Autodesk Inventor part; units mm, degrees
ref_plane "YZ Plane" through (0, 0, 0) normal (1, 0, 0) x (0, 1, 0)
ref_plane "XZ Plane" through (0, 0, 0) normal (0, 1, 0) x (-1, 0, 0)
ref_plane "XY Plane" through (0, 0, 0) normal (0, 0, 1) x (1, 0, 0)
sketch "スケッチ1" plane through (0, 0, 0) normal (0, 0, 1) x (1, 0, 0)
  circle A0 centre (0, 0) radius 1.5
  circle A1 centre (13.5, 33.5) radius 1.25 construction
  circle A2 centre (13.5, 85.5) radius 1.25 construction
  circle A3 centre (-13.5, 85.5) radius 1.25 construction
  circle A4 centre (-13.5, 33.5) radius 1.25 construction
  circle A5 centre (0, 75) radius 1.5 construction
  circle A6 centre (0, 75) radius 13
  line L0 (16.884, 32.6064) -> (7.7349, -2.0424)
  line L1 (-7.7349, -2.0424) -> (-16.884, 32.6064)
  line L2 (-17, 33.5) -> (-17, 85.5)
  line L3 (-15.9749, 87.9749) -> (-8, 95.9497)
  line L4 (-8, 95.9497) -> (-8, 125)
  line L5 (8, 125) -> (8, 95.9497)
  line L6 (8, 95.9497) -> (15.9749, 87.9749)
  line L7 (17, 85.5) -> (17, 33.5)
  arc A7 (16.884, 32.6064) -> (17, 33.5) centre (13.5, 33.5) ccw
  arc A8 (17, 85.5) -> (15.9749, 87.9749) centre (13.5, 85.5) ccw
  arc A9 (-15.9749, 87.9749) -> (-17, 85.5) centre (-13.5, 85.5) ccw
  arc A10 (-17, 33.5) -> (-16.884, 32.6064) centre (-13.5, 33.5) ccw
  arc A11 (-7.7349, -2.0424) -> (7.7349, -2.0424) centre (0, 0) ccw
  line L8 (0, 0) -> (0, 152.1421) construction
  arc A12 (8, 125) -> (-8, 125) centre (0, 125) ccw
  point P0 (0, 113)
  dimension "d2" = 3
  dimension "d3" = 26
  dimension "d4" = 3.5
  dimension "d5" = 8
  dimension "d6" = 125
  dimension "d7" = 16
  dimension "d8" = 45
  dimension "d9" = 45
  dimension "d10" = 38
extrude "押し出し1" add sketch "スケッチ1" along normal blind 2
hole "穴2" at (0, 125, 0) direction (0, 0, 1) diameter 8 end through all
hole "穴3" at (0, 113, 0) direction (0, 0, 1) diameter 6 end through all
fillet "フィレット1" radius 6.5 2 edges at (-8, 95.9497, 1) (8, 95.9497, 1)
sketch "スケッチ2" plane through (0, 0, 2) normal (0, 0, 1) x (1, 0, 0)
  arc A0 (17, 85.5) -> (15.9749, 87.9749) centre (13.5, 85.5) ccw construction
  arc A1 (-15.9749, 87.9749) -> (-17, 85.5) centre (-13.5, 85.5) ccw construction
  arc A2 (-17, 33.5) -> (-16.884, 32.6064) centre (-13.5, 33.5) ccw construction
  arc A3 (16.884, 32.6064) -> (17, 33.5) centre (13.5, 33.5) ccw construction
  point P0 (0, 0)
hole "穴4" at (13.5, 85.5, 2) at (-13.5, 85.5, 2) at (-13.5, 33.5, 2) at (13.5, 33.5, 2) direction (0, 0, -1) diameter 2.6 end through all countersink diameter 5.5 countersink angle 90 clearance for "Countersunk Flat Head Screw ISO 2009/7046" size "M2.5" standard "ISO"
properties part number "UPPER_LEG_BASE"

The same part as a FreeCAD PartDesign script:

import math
import FreeCAD as App
import Part
import Sketcher

V = App.Vector
Q = App.Units.Quantity


def edges_at(feature, points):
    """Names of the edges that pass closest to the given points."""
    edges = feature.Shape.Edges
    near = lambda p: min(range(len(edges)), key=lambda i: edges[i].distToShape(Part.Vertex(*p))[0])
    return sorted({f"Edge{near(p) + 1}" for p in points})

doc = App.newDocument("Part")
body = doc.addObject("PartDesign::Body", "Body")

sketch1 = doc.addObject("Sketcher::SketchObject", "Sketch")
body.addObject(sketch1)
sketch1.AttachmentSupport = (doc.XY_Plane, [""])
sketch1.MapMode = "FlatFace"
sketch1.addGeometry([
    Part.LineSegment(V(7.7, -2, 0), V(16.9, 32.6, 0)),
    Part.ArcOfCircle(Part.Circle(V(13.5, 33.5, 0), V(0, 0, 1), 3.5), math.radians(-14.79), math.radians(0)),
    Part.LineSegment(V(17, 33.5, 0), V(17, 85.5, 0)),
    Part.ArcOfCircle(Part.Circle(V(13.5, 85.5, 0), V(0, 0, 1), 3.5), math.radians(0), math.radians(45)),
    Part.LineSegment(V(16, 88, 0), V(8, 95.9, 0)),
    Part.LineSegment(V(8, 95.9, 0), V(8, 125, 0)),
    Part.ArcOfCircle(Part.Circle(V(0, 125, 0), V(0, 0, 1), 8), math.radians(0), math.radians(180)),
    Part.LineSegment(V(-8, 125, 0), V(-8, 95.9, 0)),
    Part.LineSegment(V(-8, 95.9, 0), V(-16, 88, 0)),
    Part.ArcOfCircle(Part.Circle(V(-13.5, 85.5, 0), V(0, 0, 1), 3.5), math.radians(135), math.radians(180)),
    Part.LineSegment(V(-17, 85.5, 0), V(-17, 33.5, 0)),
    Part.ArcOfCircle(Part.Circle(V(-13.5, 33.5, 0), V(0, 0, 1), 3.5), math.radians(180), math.radians(194.79)),
    Part.LineSegment(V(-16.9, 32.6, 0), V(-7.7, -2, 0)),
    Part.ArcOfCircle(Part.Circle(V(0, 0, 0), V(0, 0, 1), 8), math.radians(-165), math.radians(-15)),
    Part.Circle(V(0, 0, 0), V(0, 0, 1), 1.5),
    Part.Circle(V(0, 75, 0), V(0, 0, 1), 13),
], False)
sketch1.addConstraint([
    Sketcher.Constraint("Tangent", 0, 2, 1, 1),
    Sketcher.Constraint("Tangent", 1, 2, 2, 1),
    Sketcher.Constraint("Tangent", 2, 2, 3, 1),
    Sketcher.Constraint("Tangent", 3, 2, 4, 1),
    Sketcher.Constraint("Coincident", 4, 2, 5, 1),
    Sketcher.Constraint("Tangent", 5, 2, 6, 1),
    Sketcher.Constraint("Tangent", 6, 2, 7, 1),
    Sketcher.Constraint("Coincident", 7, 2, 8, 1),
    Sketcher.Constraint("Tangent", 8, 2, 9, 1),
    Sketcher.Constraint("Tangent", 9, 2, 10, 1),
    Sketcher.Constraint("Tangent", 10, 2, 11, 1),
    Sketcher.Constraint("Tangent", 11, 2, 12, 1),
    Sketcher.Constraint("Tangent", 12, 2, 13, 1),
    Sketcher.Constraint("Tangent", 13, 2, 0, 1),
    Sketcher.Constraint("Vertical", 2),
    Sketcher.Constraint("Vertical", 5),
    Sketcher.Constraint("Vertical", 7),
    Sketcher.Constraint("Vertical", 10),
    Sketcher.Constraint("Coincident", 13, 3, -1, 1),
    Sketcher.Constraint("Coincident", 14, 3, -1, 1),
    Sketcher.Constraint("Equal", 1, 3),
    Sketcher.Constraint("Equal", 3, 9),
    Sketcher.Constraint("Equal", 9, 11),
    Sketcher.Constraint("Equal", 6, 13),
    Sketcher.Constraint("Symmetric", 3, 3, 9, 3, -2),
    Sketcher.Constraint("Symmetric", 4, 2, 7, 2, -2),
    Sketcher.Constraint("PointOnObject", 15, 3, -2),
    Sketcher.Constraint("Perpendicular", 4, 8),
    Sketcher.Constraint("Horizontal", 1, 3, 11, 3),
    Sketcher.Constraint("Diameter", 14, Q("3 mm")),
    Sketcher.Constraint("Diameter", 15, Q("26 mm")),
    Sketcher.Constraint("Radius", 6, Q("8 mm")),
    Sketcher.Constraint("Radius", 1, Q("3.5 mm")),
    Sketcher.Constraint("DistanceY", -1, 1, 6, 3, Q("125 mm")),
    Sketcher.Constraint("DistanceY", 2, 1, 2, 2, Q("52 mm")),
    Sketcher.Constraint("DistanceY", -1, 1, 15, 3, Q("75 mm")),
    Sketcher.Constraint("DistanceX", -1, 1, 1, 2, Q("17 mm")),
    Sketcher.Constraint("DistanceY", -1, 1, 1, 3, Q("33.5 mm")),
])
pad1 = doc.addObject("PartDesign::Pad", "Pad")
body.addObject(pad1)
pad1.Profile = sketch1
pad1.Length = 2

sketch2 = doc.addObject("Sketcher::SketchObject", "Sketch001")
body.addObject(sketch2)
sketch2.AttachmentSupport = (doc.XY_Plane, [""])
sketch2.MapMode = "FlatFace"
sketch2.addGeometry(Part.Circle(V(0, 125, 0), V(0, 0, 1), 4), False)
sketch2.addConstraint([
    Sketcher.Constraint("PointOnObject", 0, 3, -2),
    Sketcher.Constraint("Diameter", 0, Q("8 mm")),
    Sketcher.Constraint("DistanceY", -1, 1, 0, 3, Q("125 mm")),
])
doc.recompute()
hole = doc.addObject("PartDesign::Hole", "Hole")
body.addObject(hole)
hole.Profile = sketch2
hole.ThreadType = "None"
hole.Diameter = 8
hole.DepthType = "ThroughAll"
hole.Reversed = True

sketch3 = doc.addObject("Sketcher::SketchObject", "Sketch002")
body.addObject(sketch3)
sketch3.AttachmentSupport = (doc.XY_Plane, [""])
sketch3.MapMode = "FlatFace"
sketch3.addGeometry(Part.Circle(V(0, 113, 0), V(0, 0, 1), 3), False)
sketch3.addConstraint([
    Sketcher.Constraint("PointOnObject", 0, 3, -2),
    Sketcher.Constraint("Diameter", 0, Q("6 mm")),
    Sketcher.Constraint("DistanceY", -1, 1, 0, 3, Q("113 mm")),
])
doc.recompute()
hole2 = doc.addObject("PartDesign::Hole", "Hole001")
body.addObject(hole2)
hole2.Profile = sketch3
hole2.ThreadType = "None"
hole2.Diameter = 6
hole2.DepthType = "ThroughAll"
hole2.Reversed = True
doc.recompute()

fillet = doc.addObject("PartDesign::Fillet", "Fillet")
body.addObject(fillet)
fillet.Base = (hole2, edges_at(hole2, [(-8, 95.95, 1), (8, 95.95, 1)]))
fillet.Radius = 6.5

sketch4 = doc.addObject("Sketcher::SketchObject", "Sketch003")
body.addObject(sketch4)
sketch4.AttachmentSupport = (doc.XY_Plane, [""])
sketch4.MapMode = "FlatFace"
sketch4.AttachmentOffset = App.Placement(V(0, 0, 2), App.Rotation())
sketch4.addGeometry([
    Part.Circle(V(13.5, 85.5, 0), V(0, 0, 1), 1.3),
    Part.Circle(V(-13.5, 85.5, 0), V(0, 0, 1), 1.3),
    Part.Circle(V(-13.5, 33.5, 0), V(0, 0, 1), 1.3),
    Part.Circle(V(13.5, 33.5, 0), V(0, 0, 1), 1.3),
], False)
sketch4.addConstraint([
    Sketcher.Constraint("Equal", 0, 1),
    Sketcher.Constraint("Equal", 1, 2),
    Sketcher.Constraint("Equal", 2, 3),
    Sketcher.Constraint("Symmetric", 0, 3, 1, 3, -2),
    Sketcher.Constraint("Symmetric", 2, 3, 3, 3, -2),
    Sketcher.Constraint("Vertical", 1, 3, 2, 3),
    Sketcher.Constraint("Diameter", 0, Q("2.6 mm")),
    Sketcher.Constraint("DistanceX", 1, 3, 0, 3, Q("27 mm")),
    Sketcher.Constraint("DistanceY", 2, 3, 1, 3, Q("52 mm")),
    Sketcher.Constraint("DistanceY", -1, 1, 0, 3, Q("85.5 mm")),
])
doc.recompute()
hole3 = doc.addObject("PartDesign::Hole", "Hole002")
body.addObject(hole3)
hole3.Profile = sketch4
hole3.ThreadType = "None"
hole3.Diameter = 2.6
hole3.DepthType = "ThroughAll"
hole3.HoleCutType = "Countersink"
hole3.HoleCutDiameter = 5.5
hole3.HoleCutCountersinkAngle = 90

doc.recompute()
